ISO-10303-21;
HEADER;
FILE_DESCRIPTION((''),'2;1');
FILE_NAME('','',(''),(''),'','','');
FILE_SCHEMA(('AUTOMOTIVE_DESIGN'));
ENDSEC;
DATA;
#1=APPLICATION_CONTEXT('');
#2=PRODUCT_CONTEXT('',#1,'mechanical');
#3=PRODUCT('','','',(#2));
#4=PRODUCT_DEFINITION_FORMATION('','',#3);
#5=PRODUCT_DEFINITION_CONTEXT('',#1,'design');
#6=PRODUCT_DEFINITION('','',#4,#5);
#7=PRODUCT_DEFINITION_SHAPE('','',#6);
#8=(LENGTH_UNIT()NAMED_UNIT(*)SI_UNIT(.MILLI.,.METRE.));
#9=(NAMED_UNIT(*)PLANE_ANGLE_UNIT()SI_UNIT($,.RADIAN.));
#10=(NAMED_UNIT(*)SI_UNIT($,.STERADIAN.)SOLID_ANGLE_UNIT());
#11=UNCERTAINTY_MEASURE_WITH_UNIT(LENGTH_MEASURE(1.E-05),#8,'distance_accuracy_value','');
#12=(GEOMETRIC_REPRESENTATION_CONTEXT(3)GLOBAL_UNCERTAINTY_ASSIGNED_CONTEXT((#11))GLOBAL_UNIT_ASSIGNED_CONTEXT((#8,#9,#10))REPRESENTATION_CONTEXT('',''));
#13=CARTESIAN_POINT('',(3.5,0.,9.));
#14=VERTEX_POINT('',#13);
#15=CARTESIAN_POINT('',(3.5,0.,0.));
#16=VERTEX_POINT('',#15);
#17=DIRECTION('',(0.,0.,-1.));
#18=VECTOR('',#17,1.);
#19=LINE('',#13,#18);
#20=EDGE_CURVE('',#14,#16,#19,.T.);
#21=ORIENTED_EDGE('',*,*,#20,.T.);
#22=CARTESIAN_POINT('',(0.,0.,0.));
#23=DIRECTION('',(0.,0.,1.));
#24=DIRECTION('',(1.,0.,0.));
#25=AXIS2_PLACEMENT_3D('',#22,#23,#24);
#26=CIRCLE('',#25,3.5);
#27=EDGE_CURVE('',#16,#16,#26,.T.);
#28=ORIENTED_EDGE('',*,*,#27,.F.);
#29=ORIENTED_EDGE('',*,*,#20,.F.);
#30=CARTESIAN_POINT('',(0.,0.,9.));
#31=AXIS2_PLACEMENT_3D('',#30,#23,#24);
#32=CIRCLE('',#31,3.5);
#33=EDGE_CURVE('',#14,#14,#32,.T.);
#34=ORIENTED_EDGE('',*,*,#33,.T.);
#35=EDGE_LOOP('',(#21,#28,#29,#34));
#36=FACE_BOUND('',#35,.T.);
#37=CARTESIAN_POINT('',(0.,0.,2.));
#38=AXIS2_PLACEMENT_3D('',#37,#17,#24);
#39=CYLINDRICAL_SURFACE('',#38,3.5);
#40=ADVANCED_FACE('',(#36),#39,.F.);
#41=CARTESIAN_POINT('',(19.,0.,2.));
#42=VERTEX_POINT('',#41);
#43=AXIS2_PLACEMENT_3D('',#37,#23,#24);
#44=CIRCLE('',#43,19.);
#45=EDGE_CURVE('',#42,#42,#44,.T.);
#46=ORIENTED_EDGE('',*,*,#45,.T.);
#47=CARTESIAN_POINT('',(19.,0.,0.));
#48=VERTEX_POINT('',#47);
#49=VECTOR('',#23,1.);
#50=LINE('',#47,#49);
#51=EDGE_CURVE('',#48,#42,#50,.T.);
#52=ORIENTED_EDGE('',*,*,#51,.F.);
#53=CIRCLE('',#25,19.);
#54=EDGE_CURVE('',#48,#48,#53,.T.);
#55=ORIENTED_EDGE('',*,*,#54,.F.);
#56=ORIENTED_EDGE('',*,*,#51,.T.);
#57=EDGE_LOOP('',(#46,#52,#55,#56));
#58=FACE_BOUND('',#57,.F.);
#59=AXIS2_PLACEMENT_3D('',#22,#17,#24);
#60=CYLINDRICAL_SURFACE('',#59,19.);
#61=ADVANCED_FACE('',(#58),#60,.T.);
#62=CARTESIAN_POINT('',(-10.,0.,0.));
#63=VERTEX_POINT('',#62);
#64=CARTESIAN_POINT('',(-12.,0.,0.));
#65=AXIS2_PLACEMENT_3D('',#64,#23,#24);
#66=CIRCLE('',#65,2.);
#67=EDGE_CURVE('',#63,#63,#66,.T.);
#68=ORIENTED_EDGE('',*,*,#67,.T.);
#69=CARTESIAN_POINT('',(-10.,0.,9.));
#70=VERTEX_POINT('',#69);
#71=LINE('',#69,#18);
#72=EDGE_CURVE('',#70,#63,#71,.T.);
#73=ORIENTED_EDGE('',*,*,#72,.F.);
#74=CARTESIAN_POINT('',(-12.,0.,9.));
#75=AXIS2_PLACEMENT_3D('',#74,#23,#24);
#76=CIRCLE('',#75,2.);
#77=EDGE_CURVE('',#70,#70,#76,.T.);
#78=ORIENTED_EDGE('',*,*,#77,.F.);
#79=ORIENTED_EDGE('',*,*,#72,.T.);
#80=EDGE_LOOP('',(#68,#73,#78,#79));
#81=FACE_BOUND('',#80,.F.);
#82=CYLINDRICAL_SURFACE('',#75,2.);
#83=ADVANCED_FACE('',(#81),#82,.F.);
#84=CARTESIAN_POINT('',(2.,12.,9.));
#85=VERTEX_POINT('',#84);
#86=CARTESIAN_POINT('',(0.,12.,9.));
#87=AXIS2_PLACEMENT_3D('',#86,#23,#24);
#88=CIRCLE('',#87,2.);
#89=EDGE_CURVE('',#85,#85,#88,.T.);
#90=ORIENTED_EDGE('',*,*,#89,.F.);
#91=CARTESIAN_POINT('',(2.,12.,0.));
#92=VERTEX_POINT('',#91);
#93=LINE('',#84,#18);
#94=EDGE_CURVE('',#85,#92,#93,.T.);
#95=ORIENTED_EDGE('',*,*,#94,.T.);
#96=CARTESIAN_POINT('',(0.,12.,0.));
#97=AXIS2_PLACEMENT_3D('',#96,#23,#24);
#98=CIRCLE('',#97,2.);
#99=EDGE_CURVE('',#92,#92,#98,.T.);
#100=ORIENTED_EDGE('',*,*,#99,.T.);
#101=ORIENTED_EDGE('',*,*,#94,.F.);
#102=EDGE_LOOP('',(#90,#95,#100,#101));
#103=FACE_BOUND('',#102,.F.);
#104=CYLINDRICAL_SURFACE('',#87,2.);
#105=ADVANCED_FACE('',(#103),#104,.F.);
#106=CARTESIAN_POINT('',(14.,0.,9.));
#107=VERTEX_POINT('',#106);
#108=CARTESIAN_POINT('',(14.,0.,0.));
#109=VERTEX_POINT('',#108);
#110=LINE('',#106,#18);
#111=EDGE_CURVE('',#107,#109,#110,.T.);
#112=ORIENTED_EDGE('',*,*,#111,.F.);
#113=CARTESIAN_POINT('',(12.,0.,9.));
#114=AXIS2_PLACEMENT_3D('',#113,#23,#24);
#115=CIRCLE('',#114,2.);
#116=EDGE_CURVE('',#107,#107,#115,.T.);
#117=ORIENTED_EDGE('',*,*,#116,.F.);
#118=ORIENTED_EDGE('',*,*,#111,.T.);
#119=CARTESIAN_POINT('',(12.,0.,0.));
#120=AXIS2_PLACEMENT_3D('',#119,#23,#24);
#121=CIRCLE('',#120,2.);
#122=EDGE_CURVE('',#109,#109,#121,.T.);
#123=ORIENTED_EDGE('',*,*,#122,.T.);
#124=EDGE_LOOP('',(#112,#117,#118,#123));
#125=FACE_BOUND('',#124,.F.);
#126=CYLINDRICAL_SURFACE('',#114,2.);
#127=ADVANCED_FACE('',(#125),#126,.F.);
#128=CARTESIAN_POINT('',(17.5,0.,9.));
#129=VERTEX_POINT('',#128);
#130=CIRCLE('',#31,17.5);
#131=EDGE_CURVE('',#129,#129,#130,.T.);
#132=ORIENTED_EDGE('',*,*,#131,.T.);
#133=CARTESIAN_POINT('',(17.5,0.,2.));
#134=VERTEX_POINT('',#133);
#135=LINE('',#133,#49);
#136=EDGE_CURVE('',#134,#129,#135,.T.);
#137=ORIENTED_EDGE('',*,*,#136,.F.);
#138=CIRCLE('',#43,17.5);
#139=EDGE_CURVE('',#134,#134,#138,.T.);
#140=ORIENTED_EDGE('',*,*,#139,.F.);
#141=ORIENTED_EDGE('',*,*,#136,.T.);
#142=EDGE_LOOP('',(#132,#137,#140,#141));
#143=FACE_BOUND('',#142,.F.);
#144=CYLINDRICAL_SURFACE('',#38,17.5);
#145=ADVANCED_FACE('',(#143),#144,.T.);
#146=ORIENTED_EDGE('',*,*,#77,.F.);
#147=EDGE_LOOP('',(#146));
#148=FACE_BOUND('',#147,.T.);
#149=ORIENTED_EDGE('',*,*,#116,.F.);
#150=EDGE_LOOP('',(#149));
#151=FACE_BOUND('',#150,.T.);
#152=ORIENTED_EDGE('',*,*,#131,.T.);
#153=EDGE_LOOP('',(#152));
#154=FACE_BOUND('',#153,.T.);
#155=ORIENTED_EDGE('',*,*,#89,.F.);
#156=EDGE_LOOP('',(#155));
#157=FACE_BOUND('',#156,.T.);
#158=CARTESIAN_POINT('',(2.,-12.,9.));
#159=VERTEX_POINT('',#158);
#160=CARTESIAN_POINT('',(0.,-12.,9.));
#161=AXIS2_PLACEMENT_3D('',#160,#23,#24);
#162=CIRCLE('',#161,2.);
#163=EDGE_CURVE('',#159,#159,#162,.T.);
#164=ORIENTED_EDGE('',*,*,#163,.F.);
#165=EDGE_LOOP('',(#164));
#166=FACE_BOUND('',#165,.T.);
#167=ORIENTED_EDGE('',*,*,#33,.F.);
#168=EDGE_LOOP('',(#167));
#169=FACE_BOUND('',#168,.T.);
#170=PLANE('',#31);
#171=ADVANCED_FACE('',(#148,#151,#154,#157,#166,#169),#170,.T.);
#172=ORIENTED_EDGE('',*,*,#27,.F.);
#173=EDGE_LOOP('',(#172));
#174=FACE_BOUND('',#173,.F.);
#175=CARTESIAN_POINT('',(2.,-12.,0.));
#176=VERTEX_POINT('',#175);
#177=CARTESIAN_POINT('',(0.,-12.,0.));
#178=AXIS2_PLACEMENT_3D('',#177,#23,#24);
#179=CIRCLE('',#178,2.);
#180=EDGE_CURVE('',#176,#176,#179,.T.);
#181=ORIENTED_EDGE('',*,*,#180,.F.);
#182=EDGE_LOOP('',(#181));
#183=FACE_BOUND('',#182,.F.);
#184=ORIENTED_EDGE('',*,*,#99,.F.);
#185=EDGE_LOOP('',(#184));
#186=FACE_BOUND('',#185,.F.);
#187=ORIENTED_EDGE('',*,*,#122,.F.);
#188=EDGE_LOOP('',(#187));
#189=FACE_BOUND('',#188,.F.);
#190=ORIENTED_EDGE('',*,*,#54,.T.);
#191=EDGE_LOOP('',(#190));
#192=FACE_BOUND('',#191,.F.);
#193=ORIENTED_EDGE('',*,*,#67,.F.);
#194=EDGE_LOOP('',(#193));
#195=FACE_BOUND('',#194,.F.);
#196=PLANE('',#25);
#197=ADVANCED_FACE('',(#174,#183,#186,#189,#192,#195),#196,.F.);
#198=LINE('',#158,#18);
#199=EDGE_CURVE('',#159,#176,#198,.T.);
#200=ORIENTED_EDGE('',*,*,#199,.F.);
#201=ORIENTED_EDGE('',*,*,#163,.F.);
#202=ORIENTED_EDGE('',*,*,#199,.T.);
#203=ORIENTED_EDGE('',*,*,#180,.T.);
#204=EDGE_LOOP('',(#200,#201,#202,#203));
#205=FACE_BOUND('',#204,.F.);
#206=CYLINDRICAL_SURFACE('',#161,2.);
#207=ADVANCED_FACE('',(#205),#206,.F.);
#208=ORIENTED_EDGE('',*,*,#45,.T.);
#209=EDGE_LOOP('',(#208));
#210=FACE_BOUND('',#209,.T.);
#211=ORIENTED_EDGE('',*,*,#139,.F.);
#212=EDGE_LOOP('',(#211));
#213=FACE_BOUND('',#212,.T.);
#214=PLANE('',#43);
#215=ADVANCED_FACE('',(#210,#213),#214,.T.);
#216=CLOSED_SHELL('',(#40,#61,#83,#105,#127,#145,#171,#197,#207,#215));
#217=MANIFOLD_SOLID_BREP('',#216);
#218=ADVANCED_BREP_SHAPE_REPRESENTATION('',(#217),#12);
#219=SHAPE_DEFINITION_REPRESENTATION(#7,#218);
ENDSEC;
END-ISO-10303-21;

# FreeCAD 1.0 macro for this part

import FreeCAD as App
import Part
import Sketcher
from FreeCAD import Vector
Q = App.Units.Quantity

doc = App.newDocument("Part")
body = doc.addObject("PartDesign::Body", "Body")

# Sketch on XY plane
sketch1 = doc.addObject("Sketcher::SketchObject", "Sketch")
body.addObject(sketch1)
sketch1.AttachmentSupport = (doc.XY_Plane, [""])
sketch1.MapMode = "FlatFace"
sketch1.addGeometry(Part.Circle(Vector(0, 0, 0), Vector(0, 0, 1), 19), False)
sketch1.addGeometry(Part.Circle(Vector(0, 0, 0), Vector(0, 0, 1), 3.5), False)
sketch1.addConstraint(Sketcher.Constraint("Coincident", 0, 3, -1, 1))
sketch1.addConstraint(Sketcher.Constraint("Coincident", 1, 3, -1, 1))
sketch1.addConstraint(Sketcher.Constraint("Diameter", 0, Q("38 mm")))
sketch1.addConstraint(Sketcher.Constraint("Diameter", 1, Q("7 mm")))
pad1 = doc.addObject("PartDesign::Pad", "Pad")
body.addObject(pad1)
pad1.Profile = sketch1
pad1.Length = 2

# Sketch on XY plane
sketch2 = doc.addObject("Sketcher::SketchObject", "Sketch001")
body.addObject(sketch2)
sketch2.AttachmentSupport = (doc.XY_Plane, [""])
sketch2.MapMode = "FlatFace"
sketch2.AttachmentOffset = App.Placement(Vector(0, 0, 2), App.Rotation())
sketch2.addGeometry(Part.Circle(Vector(0, 0, 0), Vector(0, 0, 1), 17.5), False)
sketch2.addGeometry(Part.Circle(Vector(0, 0, 0), Vector(0, 0, 1), 3.5), False)
sketch2.addConstraint(Sketcher.Constraint("Coincident", 0, 3, -1, 1))
sketch2.addConstraint(Sketcher.Constraint("Coincident", 1, 3, -1, 1))
sketch2.addConstraint(Sketcher.Constraint("Diameter", 0, Q("35 mm")))
sketch2.addConstraint(Sketcher.Constraint("Diameter", 1, Q("7 mm")))
pad2 = doc.addObject("PartDesign::Pad", "Pad001")
body.addObject(pad2)
pad2.Profile = sketch2
pad2.Length = 7

# Sketch on XY plane
sketch3 = doc.addObject("Sketcher::SketchObject", "Sketch002")
body.addObject(sketch3)
sketch3.AttachmentSupport = (doc.XY_Plane, [""])
sketch3.MapMode = "FlatFace"
sketch3.AttachmentOffset = App.Placement(Vector(0, 0, 9), App.Rotation())
sketch3.addGeometry(Part.Circle(Vector(0, 12, 0), Vector(0, 0, 1), 2), False)
sketch3.addGeometry(Part.Circle(Vector(-12, 0, 0), Vector(0, 0, 1), 2), False)
sketch3.addGeometry(Part.Circle(Vector(0, -12, 0), Vector(0, 0, 1), 2), False)
sketch3.addGeometry(Part.Circle(Vector(12, 0, 0), Vector(0, 0, 1), 2), False)
sketch3.addConstraint(Sketcher.Constraint("Equal", 0, 1))
sketch3.addConstraint(Sketcher.Constraint("Equal", 1, 2))
sketch3.addConstraint(Sketcher.Constraint("Equal", 2, 3))
sketch3.addConstraint(Sketcher.Constraint("Symmetric", 0, 3, 2, 3, -1, 1))
sketch3.addConstraint(Sketcher.Constraint("Symmetric", 1, 3, 3, 3, -1, 1))
sketch3.addConstraint(Sketcher.Constraint("PointOnObject", 0, 3, -2))
sketch3.addConstraint(Sketcher.Constraint("PointOnObject", 1, 3, -1))
sketch3.addConstraint(Sketcher.Constraint("Diameter", 0, Q("4 mm")))
sketch3.addConstraint(Sketcher.Constraint("DistanceY", -1, 1, 0, 3, Q("12 mm")))
sketch3.addConstraint(Sketcher.Constraint("DistanceX", 1, 3, -1, 1, Q("12 mm")))
pocket1 = doc.addObject("PartDesign::Pocket", "Pocket")
body.addObject(pocket1)
pocket1.Profile = sketch3
pocket1.Length = 25

doc.recompute()
